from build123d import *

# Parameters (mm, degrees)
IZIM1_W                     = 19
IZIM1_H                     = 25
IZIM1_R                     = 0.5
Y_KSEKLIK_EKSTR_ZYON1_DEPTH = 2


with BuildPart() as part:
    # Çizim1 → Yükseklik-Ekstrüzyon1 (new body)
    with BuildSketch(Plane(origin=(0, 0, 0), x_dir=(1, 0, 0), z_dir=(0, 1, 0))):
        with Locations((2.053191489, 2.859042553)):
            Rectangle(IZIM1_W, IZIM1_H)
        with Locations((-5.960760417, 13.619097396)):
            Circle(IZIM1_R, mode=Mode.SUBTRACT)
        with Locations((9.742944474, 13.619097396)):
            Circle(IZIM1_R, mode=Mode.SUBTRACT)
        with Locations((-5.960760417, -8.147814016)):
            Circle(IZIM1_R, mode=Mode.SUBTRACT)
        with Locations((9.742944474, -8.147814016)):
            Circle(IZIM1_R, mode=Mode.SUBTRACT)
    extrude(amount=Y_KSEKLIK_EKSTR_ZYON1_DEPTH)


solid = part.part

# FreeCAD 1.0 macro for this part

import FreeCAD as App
import Part
import Sketcher
from FreeCAD import Vector


def add_polygon(sketch, points):
    """Adds a closed chain of lines whose ends are joined by coincident constraints."""
    first, n = sketch.GeometryCount, len(points)
    for a, b in zip(points, points[1:] + points[:1]):
        sketch.addGeometry(Part.LineSegment(App.Vector(*a, 0), App.Vector(*b, 0)), False)
    for i in range(n):
        sketch.addConstraint(Sketcher.Constraint("Coincident", first + i, 2, first + (i + 1) % n, 1))

doc = App.newDocument("Part")
params = doc.addObject("Spreadsheet::Sheet", "Params")
for row, (alias, value) in enumerate([
    ("sketch1_diameter", "1 mm"),
    ("sketch1_width", "19 mm"),
    ("sketch1_height", "25 mm"),
    ("pad1_length", "2 mm"),
], start=1):
    params.set(f"A{row}", alias)
    params.set(f"B{row}", "=" + value)
    params.setAlias(f"B{row}", alias)

body = doc.addObject("PartDesign::Body", "Body")

# Sketch on XZ plane
sketch1 = body.newObject("Sketcher::SketchObject", "Sketch")
sketch1.AttachmentSupport = (doc.getObject("XZ_Plane"), [""])
sketch1.MapMode = "FlatFace"
add_polygon(sketch1, [(-7.446809, -15.359043), (-7.446809, 9.640957), (11.553191, 9.640957), (11.553191, -15.359043)])  # lines 0-3
sketch1.addGeometry(Part.Circle(Vector(-5.96076, 8.147814, 0), Vector(0, 0, 1), 0.5), False)  # 4
sketch1.addGeometry(Part.Circle(Vector(9.742944, 8.147814, 0), Vector(0, 0, 1), 0.5), False)  # 5
sketch1.addGeometry(Part.Circle(Vector(-5.96076, -13.619097, 0), Vector(0, 0, 1), 0.5), False)  # 6
sketch1.addGeometry(Part.Circle(Vector(9.742944, -13.619097, 0), Vector(0, 0, 1), 0.5), False)  # 7
sketch1.addConstraint([
    Sketcher.Constraint("Vertical", 0),
    Sketcher.Constraint("Horizontal", 1),
    Sketcher.Constraint("Vertical", 2),
    Sketcher.Constraint("Horizontal", 3),
    Sketcher.Constraint("Equal", 4, 5),
    Sketcher.Constraint("Equal", 5, 6),
    Sketcher.Constraint("Equal", 6, 7),
    Sketcher.Constraint("Horizontal", 4, 3, 5, 3),
    Sketcher.Constraint("Horizontal", 6, 3, 7, 3),
    Sketcher.Constraint("Vertical", 4, 3, 6, 3),
    Sketcher.Constraint("Vertical", 5, 3, 7, 3),
    Sketcher.Constraint("Diameter", 4, 1.0),
    Sketcher.Constraint("DistanceX", 1, 1, 1, 2, 19.0),
    Sketcher.Constraint("DistanceY", 0, 1, 0, 2, 25.0),
    Sketcher.Constraint("DistanceX", 4, 3, -1, 1, 5.96076),
    Sketcher.Constraint("DistanceX", 0, 2, -1, 1, 7.446809),
    Sketcher.Constraint("DistanceY", 6, 3, 4, 3, 21.766911),
    Sketcher.Constraint("DistanceY", -1, 1, 4, 3, 8.147814),
    Sketcher.Constraint("DistanceX", -1, 1, 5, 3, 9.742944),
    Sketcher.Constraint("DistanceY", -1, 1, 0, 2, 9.640957),
])
sketch1.setExpression("Constraints[15]", "Params.sketch1_diameter")
sketch1.setExpression("Constraints[16]", "Params.sketch1_width")
sketch1.setExpression("Constraints[17]", "Params.sketch1_height")
pad1 = body.newObject("PartDesign::Pad", "Pad")
pad1.Profile = sketch1
pad1.setExpression("Length", "Params.pad1_length")
pad1.Reversed = True

doc.recompute()
